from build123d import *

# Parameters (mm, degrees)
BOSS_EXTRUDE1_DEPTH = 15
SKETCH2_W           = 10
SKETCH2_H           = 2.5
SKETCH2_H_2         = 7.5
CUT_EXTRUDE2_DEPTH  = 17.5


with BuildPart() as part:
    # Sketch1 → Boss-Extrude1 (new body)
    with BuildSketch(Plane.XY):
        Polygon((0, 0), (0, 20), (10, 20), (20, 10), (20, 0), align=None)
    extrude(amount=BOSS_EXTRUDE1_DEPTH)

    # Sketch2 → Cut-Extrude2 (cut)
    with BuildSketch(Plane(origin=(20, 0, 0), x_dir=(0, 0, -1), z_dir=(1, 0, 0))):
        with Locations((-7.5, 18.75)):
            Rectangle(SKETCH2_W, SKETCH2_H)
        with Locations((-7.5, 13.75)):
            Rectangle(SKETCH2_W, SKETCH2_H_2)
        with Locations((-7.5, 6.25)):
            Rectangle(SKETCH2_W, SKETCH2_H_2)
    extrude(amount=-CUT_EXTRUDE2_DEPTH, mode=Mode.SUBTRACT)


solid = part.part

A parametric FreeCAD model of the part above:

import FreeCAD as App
import Part
import Sketcher

V = App.Vector


def add_polygon(sketch, points):
    """Adds a closed chain of lines whose ends are joined by coincident constraints."""
    first, n = sketch.GeometryCount, len(points)
    for a, b in zip(points, points[1:] + points[:1]):
        sketch.addGeometry(Part.LineSegment(App.Vector(*a, 0), App.Vector(*b, 0)), False)
    for i in range(n):
        sketch.addConstraint(Sketcher.Constraint("Coincident", first + i, 2, first + (i + 1) % n, 1))

doc = App.newDocument("Part")
body = doc.addObject("PartDesign::Body", "Body")

# Sketch on XY plane
sketch1 = body.newObject("Sketcher::SketchObject", "Sketch")
sketch1.AttachmentSupport = (doc.getObject("XY_Plane"), [""])
sketch1.MapMode = "FlatFace"
add_polygon(sketch1, [(0, 20), (0, 0), (20, 0), (20, 10), (10, 20)])  # lines 0-4
sketch1.addConstraint(Sketcher.Constraint("Vertical", 0))
sketch1.addConstraint(Sketcher.Constraint("Horizontal", 1))
sketch1.addConstraint(Sketcher.Constraint("Vertical", 2))
sketch1.addConstraint(Sketcher.Constraint("Horizontal", 4))
sketch1.addConstraint(Sketcher.Constraint("Coincident", 0, 2, -1, 1))
sketch1.addConstraint(Sketcher.Constraint("Equal", 1, 0))
sketch1.addConstraint(Sketcher.Constraint("Equal", 4, 2))
sketch1.addConstraint(Sketcher.Constraint("DistanceX", 1, 1, 1, 2, 20.0))
sketch1.addConstraint(Sketcher.Constraint("DistanceX", 4, 2, 4, 1, 10.0))
pad1 = body.newObject("PartDesign::Pad", "Pad")
pad1.Profile = sketch1
pad1.Length = 15

# Sketch on YZ plane
sketch2 = body.newObject("Sketcher::SketchObject", "Sketch001")
sketch2.AttachmentSupport = (doc.getObject("YZ_Plane"), [""])
sketch2.MapMode = "FlatFace"
sketch2.AttachmentOffset = App.Placement(V(0, 0, 20), App.Rotation())
add_polygon(sketch2, [(20, 12), (2, 12), (2, 2), (20, 2)])  # lines 0-3
sketch2.addConstraint(Sketcher.Constraint("Horizontal", 0))
sketch2.addConstraint(Sketcher.Constraint("Vertical", 1))
sketch2.addConstraint(Sketcher.Constraint("Horizontal", 2))
sketch2.addConstraint(Sketcher.Constraint("Vertical", 3))
sketch2.addConstraint(Sketcher.Constraint("DistanceY", 1, 2, 1, 1, 10.0))
sketch2.addConstraint(Sketcher.Constraint("DistanceX", 0, 2, 0, 1, 17.5))
sketch2.addConstraint(Sketcher.Constraint("DistanceX", -1, 1, 2, 2, 20.0))
sketch2.addConstraint(Sketcher.Constraint("DistanceY", -1, 1, 0, 2, 12.5))
pocket1 = body.newObject("PartDesign::Pocket", "Pocket")
pocket1.Profile = sketch2
pocket1.Length = 17.5

doc.recompute()
